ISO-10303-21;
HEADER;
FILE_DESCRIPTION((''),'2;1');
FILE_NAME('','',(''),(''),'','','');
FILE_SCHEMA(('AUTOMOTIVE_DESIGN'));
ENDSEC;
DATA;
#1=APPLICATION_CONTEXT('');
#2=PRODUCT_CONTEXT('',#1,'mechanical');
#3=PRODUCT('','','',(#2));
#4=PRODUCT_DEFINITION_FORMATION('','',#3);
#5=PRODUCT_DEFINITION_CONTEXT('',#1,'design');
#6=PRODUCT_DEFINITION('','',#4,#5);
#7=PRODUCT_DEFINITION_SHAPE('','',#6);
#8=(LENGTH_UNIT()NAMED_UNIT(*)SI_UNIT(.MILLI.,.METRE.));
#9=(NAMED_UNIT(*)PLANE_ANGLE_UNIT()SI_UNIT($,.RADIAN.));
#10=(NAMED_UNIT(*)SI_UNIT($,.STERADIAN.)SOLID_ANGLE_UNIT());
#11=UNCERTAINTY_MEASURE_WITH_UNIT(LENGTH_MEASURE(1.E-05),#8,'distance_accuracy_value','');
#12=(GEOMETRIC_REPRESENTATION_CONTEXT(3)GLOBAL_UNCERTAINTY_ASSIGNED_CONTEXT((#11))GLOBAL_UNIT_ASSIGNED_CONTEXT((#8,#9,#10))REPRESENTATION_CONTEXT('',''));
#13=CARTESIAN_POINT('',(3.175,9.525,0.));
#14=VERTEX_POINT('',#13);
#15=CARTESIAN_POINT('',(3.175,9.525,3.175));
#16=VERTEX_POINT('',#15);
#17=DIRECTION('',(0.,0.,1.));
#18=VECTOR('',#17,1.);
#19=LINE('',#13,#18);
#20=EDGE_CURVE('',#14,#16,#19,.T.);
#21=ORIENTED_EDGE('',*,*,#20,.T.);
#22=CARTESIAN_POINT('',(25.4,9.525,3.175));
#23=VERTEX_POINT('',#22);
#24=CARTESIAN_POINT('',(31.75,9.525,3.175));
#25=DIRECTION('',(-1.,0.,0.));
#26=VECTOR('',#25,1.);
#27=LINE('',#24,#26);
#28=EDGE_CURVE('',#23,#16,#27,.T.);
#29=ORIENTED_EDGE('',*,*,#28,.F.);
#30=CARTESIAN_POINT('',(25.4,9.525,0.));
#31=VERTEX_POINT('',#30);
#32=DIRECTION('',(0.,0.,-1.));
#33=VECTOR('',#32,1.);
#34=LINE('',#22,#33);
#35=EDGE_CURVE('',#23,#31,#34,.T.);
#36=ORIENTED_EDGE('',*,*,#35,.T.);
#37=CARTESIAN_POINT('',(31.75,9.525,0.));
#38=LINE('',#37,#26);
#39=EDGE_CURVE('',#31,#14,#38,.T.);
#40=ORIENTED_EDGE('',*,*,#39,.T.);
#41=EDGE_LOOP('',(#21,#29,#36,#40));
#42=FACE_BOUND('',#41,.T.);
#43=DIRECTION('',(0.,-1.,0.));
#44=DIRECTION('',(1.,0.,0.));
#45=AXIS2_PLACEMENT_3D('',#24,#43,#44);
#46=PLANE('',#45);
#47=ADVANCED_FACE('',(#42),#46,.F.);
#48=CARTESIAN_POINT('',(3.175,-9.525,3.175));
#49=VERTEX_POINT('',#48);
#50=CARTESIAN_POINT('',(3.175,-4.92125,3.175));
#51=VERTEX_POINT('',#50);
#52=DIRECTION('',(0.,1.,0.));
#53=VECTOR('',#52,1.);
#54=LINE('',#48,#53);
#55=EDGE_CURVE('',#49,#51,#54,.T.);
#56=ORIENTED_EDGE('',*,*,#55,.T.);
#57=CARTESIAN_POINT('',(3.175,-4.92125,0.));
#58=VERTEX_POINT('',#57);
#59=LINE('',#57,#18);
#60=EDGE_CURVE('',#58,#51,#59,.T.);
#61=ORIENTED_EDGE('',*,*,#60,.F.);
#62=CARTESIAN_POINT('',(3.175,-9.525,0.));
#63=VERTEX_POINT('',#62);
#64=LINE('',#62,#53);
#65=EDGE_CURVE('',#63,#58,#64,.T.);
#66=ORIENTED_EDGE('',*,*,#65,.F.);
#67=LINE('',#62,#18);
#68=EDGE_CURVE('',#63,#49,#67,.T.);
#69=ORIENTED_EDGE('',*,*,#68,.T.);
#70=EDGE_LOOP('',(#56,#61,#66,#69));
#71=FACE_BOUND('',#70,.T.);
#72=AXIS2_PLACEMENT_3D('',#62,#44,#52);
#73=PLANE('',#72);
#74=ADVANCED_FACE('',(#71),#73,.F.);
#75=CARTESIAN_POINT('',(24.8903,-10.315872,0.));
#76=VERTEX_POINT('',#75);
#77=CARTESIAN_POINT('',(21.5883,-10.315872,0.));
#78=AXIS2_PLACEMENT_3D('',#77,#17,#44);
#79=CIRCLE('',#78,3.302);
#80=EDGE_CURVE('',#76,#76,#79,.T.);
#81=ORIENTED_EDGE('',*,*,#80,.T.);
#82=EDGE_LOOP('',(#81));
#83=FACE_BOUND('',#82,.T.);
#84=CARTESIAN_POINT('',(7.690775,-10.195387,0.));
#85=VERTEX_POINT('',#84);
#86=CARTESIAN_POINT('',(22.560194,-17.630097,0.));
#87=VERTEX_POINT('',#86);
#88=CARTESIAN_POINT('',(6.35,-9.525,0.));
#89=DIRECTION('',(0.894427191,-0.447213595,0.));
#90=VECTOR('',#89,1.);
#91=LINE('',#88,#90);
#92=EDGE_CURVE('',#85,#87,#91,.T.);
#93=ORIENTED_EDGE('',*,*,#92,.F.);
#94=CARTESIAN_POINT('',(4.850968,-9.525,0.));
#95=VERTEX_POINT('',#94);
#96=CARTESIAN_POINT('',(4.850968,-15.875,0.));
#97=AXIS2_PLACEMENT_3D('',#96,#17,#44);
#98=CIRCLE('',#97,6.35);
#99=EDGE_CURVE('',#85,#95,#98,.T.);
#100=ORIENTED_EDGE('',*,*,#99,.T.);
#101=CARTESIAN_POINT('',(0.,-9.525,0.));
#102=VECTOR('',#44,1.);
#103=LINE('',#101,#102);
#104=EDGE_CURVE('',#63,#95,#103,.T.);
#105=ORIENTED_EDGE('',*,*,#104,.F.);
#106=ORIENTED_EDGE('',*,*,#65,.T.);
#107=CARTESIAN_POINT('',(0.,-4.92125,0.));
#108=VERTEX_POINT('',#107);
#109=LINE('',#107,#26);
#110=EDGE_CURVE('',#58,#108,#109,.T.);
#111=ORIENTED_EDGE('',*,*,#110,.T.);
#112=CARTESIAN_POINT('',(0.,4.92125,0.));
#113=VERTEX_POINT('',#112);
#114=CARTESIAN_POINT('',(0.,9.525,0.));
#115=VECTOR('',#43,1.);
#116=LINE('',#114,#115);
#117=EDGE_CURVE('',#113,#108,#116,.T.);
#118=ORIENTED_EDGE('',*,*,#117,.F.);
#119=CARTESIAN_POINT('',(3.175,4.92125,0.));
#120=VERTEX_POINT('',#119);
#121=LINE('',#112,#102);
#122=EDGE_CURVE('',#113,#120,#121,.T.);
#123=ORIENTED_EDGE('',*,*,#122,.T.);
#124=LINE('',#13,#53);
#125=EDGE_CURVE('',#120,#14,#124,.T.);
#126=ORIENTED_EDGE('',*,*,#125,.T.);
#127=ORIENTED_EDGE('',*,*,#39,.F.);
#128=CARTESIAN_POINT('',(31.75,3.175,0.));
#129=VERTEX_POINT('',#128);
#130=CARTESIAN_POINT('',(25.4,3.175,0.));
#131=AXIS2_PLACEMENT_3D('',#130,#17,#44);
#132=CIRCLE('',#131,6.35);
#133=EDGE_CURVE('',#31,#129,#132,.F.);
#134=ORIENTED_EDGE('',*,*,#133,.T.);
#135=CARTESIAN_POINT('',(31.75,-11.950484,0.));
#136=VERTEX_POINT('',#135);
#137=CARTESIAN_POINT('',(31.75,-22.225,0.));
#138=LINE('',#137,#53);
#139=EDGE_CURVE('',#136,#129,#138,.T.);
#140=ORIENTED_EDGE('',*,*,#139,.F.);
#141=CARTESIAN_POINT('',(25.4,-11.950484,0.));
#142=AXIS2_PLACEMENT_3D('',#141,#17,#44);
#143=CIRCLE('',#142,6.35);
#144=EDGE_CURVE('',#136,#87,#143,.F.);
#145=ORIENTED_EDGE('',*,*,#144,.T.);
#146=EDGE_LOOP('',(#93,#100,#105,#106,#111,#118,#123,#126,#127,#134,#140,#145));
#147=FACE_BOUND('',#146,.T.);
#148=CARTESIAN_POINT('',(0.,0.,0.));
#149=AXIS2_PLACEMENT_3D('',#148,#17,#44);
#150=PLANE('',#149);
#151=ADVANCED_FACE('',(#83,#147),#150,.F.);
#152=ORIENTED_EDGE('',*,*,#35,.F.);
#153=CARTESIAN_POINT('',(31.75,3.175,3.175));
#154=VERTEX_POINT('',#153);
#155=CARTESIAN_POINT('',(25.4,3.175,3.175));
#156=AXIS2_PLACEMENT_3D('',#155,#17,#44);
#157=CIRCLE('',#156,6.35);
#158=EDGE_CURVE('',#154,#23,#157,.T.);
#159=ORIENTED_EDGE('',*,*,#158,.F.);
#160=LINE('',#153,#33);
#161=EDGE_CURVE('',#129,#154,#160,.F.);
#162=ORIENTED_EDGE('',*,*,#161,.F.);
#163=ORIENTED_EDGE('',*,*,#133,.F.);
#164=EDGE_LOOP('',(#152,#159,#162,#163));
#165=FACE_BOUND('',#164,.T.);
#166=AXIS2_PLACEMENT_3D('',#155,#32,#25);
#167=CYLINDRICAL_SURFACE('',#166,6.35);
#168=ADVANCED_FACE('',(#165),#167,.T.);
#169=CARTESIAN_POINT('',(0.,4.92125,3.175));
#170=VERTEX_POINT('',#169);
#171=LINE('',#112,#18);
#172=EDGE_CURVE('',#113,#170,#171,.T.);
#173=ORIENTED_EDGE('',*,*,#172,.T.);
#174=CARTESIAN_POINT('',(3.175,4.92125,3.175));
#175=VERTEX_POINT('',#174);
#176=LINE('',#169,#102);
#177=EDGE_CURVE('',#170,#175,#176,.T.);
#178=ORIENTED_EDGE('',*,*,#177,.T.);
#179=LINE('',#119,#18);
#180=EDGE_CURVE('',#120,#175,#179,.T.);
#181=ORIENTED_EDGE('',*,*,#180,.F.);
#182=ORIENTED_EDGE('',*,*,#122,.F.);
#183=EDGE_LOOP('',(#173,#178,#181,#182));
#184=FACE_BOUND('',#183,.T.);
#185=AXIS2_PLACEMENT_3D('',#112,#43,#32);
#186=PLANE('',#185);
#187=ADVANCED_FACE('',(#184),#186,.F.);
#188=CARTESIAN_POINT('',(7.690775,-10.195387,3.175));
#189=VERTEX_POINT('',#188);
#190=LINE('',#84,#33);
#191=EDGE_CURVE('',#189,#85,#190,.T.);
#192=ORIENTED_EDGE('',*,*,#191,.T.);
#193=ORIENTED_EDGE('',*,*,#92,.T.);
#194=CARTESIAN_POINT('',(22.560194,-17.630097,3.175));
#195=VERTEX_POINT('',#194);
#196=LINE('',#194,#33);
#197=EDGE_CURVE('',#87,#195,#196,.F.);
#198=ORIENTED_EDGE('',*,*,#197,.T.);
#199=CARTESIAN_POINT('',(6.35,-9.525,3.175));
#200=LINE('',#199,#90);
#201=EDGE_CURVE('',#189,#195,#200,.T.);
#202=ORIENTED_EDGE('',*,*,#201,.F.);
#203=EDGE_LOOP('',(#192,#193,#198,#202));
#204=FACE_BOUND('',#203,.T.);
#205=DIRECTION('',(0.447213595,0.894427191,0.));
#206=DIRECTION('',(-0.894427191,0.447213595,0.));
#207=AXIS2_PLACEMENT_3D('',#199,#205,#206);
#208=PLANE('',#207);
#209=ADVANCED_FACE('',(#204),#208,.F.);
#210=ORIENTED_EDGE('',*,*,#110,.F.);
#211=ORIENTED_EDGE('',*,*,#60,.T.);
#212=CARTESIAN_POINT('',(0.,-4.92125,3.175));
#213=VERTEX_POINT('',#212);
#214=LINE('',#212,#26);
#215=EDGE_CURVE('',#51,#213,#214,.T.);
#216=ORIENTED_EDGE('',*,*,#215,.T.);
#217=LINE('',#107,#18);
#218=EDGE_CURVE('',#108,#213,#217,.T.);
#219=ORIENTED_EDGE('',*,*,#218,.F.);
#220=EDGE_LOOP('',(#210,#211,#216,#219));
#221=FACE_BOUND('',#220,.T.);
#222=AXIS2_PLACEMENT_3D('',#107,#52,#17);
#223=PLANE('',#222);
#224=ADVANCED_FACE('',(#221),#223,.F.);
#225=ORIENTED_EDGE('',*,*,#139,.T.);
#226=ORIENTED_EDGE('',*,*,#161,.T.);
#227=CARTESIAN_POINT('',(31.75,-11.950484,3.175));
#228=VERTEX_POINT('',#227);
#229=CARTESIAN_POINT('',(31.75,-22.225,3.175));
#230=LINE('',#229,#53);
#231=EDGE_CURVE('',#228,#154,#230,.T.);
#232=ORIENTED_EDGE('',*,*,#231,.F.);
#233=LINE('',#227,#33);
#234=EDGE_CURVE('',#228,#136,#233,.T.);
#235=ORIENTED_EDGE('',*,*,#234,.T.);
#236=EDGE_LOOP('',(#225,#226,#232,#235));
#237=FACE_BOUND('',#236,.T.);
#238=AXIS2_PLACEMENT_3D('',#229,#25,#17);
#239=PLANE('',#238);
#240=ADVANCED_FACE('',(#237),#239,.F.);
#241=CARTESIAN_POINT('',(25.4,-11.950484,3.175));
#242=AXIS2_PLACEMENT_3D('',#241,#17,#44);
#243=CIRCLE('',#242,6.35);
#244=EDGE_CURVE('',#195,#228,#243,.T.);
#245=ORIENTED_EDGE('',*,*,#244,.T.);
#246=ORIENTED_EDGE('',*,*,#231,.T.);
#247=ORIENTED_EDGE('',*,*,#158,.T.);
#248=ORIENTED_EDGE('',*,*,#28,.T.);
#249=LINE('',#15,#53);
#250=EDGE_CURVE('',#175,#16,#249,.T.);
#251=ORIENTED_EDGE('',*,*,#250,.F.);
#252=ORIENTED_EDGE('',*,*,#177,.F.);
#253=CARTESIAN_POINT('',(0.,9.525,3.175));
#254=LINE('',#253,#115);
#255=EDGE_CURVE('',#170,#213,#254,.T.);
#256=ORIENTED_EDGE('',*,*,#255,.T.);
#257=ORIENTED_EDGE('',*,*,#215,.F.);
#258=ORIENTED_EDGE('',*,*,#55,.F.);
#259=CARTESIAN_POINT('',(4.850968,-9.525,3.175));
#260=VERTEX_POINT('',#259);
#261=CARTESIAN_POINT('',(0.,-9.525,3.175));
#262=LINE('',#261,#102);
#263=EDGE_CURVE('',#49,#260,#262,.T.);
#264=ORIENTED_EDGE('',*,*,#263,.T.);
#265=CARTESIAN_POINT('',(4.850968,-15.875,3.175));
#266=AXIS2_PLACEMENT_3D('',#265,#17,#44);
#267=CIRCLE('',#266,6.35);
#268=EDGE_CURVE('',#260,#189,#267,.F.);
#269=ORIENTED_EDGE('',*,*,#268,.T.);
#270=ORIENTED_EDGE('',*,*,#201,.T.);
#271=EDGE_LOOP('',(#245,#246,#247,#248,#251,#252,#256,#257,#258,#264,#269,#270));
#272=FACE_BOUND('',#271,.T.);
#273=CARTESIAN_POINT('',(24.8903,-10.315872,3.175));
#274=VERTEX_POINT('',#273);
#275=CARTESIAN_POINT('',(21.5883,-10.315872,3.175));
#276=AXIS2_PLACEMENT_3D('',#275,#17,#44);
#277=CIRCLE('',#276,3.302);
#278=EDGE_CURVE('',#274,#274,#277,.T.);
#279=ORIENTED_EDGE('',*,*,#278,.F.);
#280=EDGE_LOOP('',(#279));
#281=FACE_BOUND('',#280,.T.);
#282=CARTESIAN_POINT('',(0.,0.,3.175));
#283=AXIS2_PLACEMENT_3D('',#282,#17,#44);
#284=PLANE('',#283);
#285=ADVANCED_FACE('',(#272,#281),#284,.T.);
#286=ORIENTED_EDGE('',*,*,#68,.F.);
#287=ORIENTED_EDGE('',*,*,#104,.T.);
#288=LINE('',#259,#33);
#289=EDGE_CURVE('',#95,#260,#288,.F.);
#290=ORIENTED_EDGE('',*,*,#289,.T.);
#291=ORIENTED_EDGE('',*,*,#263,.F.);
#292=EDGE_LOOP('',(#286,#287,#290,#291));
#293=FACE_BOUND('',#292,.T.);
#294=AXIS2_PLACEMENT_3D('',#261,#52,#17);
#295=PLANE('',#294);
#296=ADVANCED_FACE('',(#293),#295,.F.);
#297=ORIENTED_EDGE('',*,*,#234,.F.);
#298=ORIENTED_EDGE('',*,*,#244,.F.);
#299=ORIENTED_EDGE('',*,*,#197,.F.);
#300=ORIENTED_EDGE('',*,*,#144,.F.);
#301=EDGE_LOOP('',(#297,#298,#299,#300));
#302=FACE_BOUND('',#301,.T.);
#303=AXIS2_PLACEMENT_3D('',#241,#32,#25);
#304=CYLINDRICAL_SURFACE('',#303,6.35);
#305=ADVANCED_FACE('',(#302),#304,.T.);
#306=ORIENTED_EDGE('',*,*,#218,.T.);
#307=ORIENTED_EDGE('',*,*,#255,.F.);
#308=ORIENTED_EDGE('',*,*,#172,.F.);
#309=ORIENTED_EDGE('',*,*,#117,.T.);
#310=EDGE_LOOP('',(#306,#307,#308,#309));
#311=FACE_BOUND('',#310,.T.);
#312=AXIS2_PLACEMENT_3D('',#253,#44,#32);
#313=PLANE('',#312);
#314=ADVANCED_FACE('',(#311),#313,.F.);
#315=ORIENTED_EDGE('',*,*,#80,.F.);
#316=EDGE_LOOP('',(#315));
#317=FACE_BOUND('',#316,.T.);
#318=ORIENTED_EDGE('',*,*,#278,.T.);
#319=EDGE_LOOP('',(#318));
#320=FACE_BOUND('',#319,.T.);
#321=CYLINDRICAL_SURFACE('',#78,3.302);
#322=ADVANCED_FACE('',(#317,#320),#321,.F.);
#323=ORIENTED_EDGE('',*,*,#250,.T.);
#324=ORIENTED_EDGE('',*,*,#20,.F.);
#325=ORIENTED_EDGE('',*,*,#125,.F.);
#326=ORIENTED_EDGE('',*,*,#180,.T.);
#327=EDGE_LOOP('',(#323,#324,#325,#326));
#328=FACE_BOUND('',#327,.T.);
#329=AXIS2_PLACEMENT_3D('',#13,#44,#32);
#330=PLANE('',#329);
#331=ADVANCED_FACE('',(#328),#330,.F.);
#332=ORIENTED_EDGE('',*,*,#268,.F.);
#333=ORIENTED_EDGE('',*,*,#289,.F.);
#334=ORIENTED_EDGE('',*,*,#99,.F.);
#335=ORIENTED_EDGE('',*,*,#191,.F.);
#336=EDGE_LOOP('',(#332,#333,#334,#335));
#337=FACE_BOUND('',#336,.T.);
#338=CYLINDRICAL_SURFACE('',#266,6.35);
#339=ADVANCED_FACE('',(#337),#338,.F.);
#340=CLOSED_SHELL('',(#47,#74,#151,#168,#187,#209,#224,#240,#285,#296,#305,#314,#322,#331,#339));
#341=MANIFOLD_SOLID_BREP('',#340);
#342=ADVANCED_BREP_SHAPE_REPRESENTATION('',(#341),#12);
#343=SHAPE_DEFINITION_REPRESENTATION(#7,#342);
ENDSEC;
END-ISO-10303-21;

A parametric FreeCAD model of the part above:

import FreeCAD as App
import Part
import Sketcher

V = App.Vector
Q = App.Units.Quantity


def edges_at(feature, points):
    """Names of the edges that pass closest to the given points."""
    edges = feature.Shape.Edges
    near = lambda p: min(range(len(edges)), key=lambda i: edges[i].distToShape(Part.Vertex(*p))[0])
    return sorted({f"Edge{near(p) + 1}" for p in points})

doc = App.newDocument("Part")
body = doc.addObject("PartDesign::Body", "Body")

# Sketch on XY plane
sketch1 = doc.addObject("Sketcher::SketchObject", "Sketch")
body.addObject(sketch1)
sketch1.AttachmentSupport = (doc.XY_Plane, [""])
sketch1.MapMode = "FlatFace"
sketch1.addGeometry([
    Part.LineSegment(V(0, -10, 0), V(6, -10, 0)),  # 0
    Part.LineSegment(V(6, -10, 0), V(32, -22, 0)),  # 1
    Part.LineSegment(V(32, -22, 0), V(32, 10, 0)),  # 2
    Part.LineSegment(V(32, 10, 0), V(0, 10, 0)),  # 3
    Part.LineSegment(V(0, 10, 0), V(0, -10, 0)),  # 4
], False)
sketch1.addConstraint([
    Sketcher.Constraint("Coincident", 0, 2, 1, 1),
    Sketcher.Constraint("Coincident", 1, 2, 2, 1),
    Sketcher.Constraint("Coincident", 2, 2, 3, 1),
    Sketcher.Constraint("Coincident", 3, 2, 4, 1),
    Sketcher.Constraint("Coincident", 4, 2, 0, 1),
    Sketcher.Constraint("Horizontal", 0),
    Sketcher.Constraint("Vertical", 2),
    Sketcher.Constraint("Horizontal", 3),
    Sketcher.Constraint("Vertical", 4),
    Sketcher.Constraint("Symmetric", 3, 2, 4, 2, -1, 1),
    Sketcher.Constraint("Equal", 3, 2),
    Sketcher.Constraint("DistanceX", 0, 2, 1, 2, Q("1 in")),
    Sketcher.Constraint("DistanceX", 0, 1, 0, 2, Q("0.25 in")),
    Sketcher.Constraint("DistanceY", 4, 2, 4, 1, Q("0.75 in")),
])
pad1 = doc.addObject("PartDesign::Pad", "Pad")
body.addObject(pad1)
pad1.Profile = sketch1
pad1.Length = Q("0.125 in")
doc.recompute()

fillet = doc.addObject("PartDesign::Fillet", "Fillet")
body.addObject(fillet)
fillet.Base = (pad1, edges_at(pad1, [(31.75, 9.525, 1.587), (31.75, -22.225, 1.587), (6.35, -9.525, 1.587)]))
fillet.Radius = Q("0.25 in")

# Sketch on XY plane
sketch2 = doc.addObject("Sketcher::SketchObject", "Sketch001")
body.addObject(sketch2)
sketch2.AttachmentSupport = (doc.XY_Plane, [""])
sketch2.MapMode = "FlatFace"
sketch2.AttachmentOffset = App.Placement(V(0, 0, 0.125 * 25.4), App.Rotation())
sketch2.addGeometry(Part.Circle(V(21.6, -10.3, 0), V(0, 0, 1), 3.3), False)
sketch2.addConstraint([
    Sketcher.Constraint("Diameter", 0, Q("0.26 in")),
    Sketcher.Constraint("DistanceX", -1, 1, 0, 3, Q("21.5883 mm")),
    Sketcher.Constraint("DistanceY", 0, 3, -1, 1, Q("10.315872 mm")),
])
pocket1 = doc.addObject("PartDesign::Pocket", "Pocket")
body.addObject(pocket1)
pocket1.Profile = sketch2
pocket1.Length = Q("0.125 in")

# Sketch on XY plane
sketch3 = doc.addObject("Sketcher::SketchObject", "Sketch002")
body.addObject(sketch3)
sketch3.AttachmentSupport = (doc.XY_Plane, [""])
sketch3.MapMode = "FlatFace"
sketch3.AttachmentOffset = App.Placement(V(0, 0, 0.125 * 25.4), App.Rotation())
sketch3.addGeometry([
    Part.LineSegment(V(0, 9.5, 0), V(0, 4.9, 0)),  # 0
    Part.LineSegment(V(0, 4.9, 0), V(3.2, 4.9, 0)),  # 1
    Part.LineSegment(V(3.2, 4.9, 0), V(3.2, 9.5, 0)),  # 2
    Part.LineSegment(V(3.2, 9.5, 0), V(0, 9.5, 0)),  # 3
    Part.LineSegment(V(0, -4.9, 0), V(0, -9.5, 0)),  # 4
    Part.LineSegment(V(0, -9.5, 0), V(3.2, -9.5, 0)),  # 5
    Part.LineSegment(V(3.2, -9.5, 0), V(3.2, -4.9, 0)),  # 6
    Part.LineSegment(V(3.2, -4.9, 0), V(0, -4.9, 0)),  # 7
], False)
sketch3.addConstraint([
    Sketcher.Constraint("Coincident", 0, 2, 1, 1),
    Sketcher.Constraint("Coincident", 1, 2, 2, 1),
    Sketcher.Constraint("Coincident", 2, 2, 3, 1),
    Sketcher.Constraint("Coincident", 3, 2, 0, 1),
    Sketcher.Constraint("Coincident", 4, 2, 5, 1),
    Sketcher.Constraint("Coincident", 5, 2, 6, 1),
    Sketcher.Constraint("Coincident", 6, 2, 7, 1),
    Sketcher.Constraint("Coincident", 7, 2, 4, 1),
    Sketcher.Constraint("Vertical", 0),
    Sketcher.Constraint("Horizontal", 1),
    Sketcher.Constraint("Vertical", 2),
    Sketcher.Constraint("Horizontal", 3),
    Sketcher.Constraint("Vertical", 4),
    Sketcher.Constraint("Horizontal", 5),
    Sketcher.Constraint("Vertical", 6),
    Sketcher.Constraint("Horizontal", 7),
    Sketcher.Constraint("Symmetric", 3, 2, 4, 2, -1, 1),
    Sketcher.Constraint("Symmetric", 1, 2, 6, 2, -1),
    Sketcher.Constraint("PointOnObject", 0, 2, -2),
    Sketcher.Constraint("DistanceX", 1, 1, 1, 2, Q("0.125 in")),
    Sketcher.Constraint("DistanceY", 4, 2, 3, 2, Q("0.75 in")),
    Sketcher.Constraint("DistanceY", 6, 2, 1, 2, Q("0.3875 in")),
])
pocket2 = doc.addObject("PartDesign::Pocket", "Pocket001")
body.addObject(pocket2)
pocket2.Profile = sketch3
pocket2.Length = Q("0.125 in")

doc.recompute()
